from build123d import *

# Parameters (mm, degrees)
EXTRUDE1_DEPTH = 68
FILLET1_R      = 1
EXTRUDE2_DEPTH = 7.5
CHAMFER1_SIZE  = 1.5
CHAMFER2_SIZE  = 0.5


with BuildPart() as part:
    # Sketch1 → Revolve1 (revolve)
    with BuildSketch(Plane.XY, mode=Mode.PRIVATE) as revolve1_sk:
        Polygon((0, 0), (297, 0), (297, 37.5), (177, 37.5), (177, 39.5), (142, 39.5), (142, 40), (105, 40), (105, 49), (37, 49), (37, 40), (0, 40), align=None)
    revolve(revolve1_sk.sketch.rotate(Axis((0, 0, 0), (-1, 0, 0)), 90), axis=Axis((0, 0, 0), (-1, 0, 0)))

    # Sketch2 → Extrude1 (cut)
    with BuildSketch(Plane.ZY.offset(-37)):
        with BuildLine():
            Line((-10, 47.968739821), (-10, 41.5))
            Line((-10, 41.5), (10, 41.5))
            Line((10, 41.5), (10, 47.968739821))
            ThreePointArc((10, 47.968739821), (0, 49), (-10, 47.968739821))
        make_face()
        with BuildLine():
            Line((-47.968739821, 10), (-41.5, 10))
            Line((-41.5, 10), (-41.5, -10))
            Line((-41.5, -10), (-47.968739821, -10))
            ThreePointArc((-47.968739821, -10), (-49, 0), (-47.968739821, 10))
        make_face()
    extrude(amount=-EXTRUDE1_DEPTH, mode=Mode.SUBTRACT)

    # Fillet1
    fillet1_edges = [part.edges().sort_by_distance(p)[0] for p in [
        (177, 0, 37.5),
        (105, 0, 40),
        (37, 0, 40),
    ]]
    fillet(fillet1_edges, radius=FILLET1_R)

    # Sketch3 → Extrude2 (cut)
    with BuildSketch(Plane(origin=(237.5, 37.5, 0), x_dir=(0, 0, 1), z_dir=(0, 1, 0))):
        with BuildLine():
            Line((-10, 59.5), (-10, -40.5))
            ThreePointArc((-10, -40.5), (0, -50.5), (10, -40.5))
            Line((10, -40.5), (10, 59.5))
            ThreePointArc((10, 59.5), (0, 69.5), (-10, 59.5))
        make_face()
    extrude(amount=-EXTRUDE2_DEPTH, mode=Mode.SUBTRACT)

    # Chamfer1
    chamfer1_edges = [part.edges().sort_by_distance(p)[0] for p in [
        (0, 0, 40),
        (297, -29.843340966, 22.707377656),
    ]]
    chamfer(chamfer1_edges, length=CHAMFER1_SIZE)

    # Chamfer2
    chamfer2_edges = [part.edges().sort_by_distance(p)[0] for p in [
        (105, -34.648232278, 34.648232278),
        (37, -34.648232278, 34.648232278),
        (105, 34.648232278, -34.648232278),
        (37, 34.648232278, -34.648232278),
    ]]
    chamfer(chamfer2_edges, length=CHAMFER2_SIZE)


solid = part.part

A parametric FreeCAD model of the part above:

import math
import FreeCAD as App
import Part
import Sketcher
from FreeCAD import Vector
Q = App.Units.Quantity


def edges_at(feature, points):
    """Names of the edges that pass closest to the given points."""
    edges = feature.Shape.Edges
    near = lambda p: min(range(len(edges)), key=lambda i: edges[i].distToShape(Part.Vertex(*p))[0])
    return sorted({f"Edge{near(p) + 1}" for p in points})


def add_polygon(sketch, points):
    """Adds a closed chain of lines whose ends are joined by coincident constraints."""
    first, n = sketch.GeometryCount, len(points)
    for a, b in zip(points, points[1:] + points[:1]):
        sketch.addGeometry(Part.LineSegment(App.Vector(*a, 0), App.Vector(*b, 0)), False)
    for i in range(n):
        sketch.addConstraint(Sketcher.Constraint("Coincident", first + i, 2, first + (i + 1) % n, 1))

doc = App.newDocument("Part")
body = doc.addObject("PartDesign::Body", "Body")

# Sketch on XY plane
sketch1 = body.newObject("Sketcher::SketchObject", "Sketch")
sketch1.AttachmentSupport = (doc.getObject("XY_Plane"), [""])
sketch1.MapMode = "FlatFace"
add_polygon(sketch1, [(0, 0), (297, 0), (297, 37.5), (177, 37.5), (177, 39.5), (142, 39.5), (142, 40), (105, 40), (105, 49), (37, 49), (37, 40), (0, 40)])  # lines 0-11
sketch1.addConstraint([
    Sketcher.Constraint("Horizontal", 0),
    Sketcher.Constraint("Vertical", 1),
    Sketcher.Constraint("Horizontal", 2),
    Sketcher.Constraint("Vertical", 3),
    Sketcher.Constraint("Horizontal", 4),
    Sketcher.Constraint("Vertical", 5),
    Sketcher.Constraint("Horizontal", 6),
    Sketcher.Constraint("Vertical", 7),
    Sketcher.Constraint("Horizontal", 8),
    Sketcher.Constraint("Vertical", 9),
    Sketcher.Constraint("Horizontal", 10),
    Sketcher.Constraint("Vertical", 11),
    Sketcher.Constraint("Coincident", 11, 2, -1, 1),
    Sketcher.Constraint("Horizontal", 6, 2, 9, 2),
    Sketcher.Constraint("Equal", 6, 10),
    Sketcher.Constraint("DistanceX", 0, 1, 0, 2, Q("297 mm")),
    Sketcher.Constraint("DistanceX", 2, 2, 2, 1, Q("120 mm")),
    Sketcher.Constraint("DistanceX", 4, 2, 4, 1, Q("35 mm")),
    Sketcher.Constraint("DistanceX", 6, 2, 6, 1, Q("37 mm")),
    Sketcher.Constraint("DistanceY", 3, 1, 3, 2, Q("2 mm")),
    Sketcher.Constraint("DistanceY", 7, 1, 7, 2, Q("9 mm")),
    Sketcher.Constraint("DistanceY", 11, 2, 11, 1, Q("40 mm")),
    Sketcher.Constraint("DistanceY", 1, 1, 1, 2, Q("37.5 mm")),
])
revolution = body.newObject("PartDesign::Revolution", "Revolution")
revolution.Profile = sketch1
revolution.ReferenceAxis = (sketch1, ["H_Axis"])
revolution.Angle = 360

# Sketch on YZ plane
sketch2 = body.newObject("Sketcher::SketchObject", "Sketch001")
sketch2.AttachmentSupport = (doc.getObject("YZ_Plane"), [""])
sketch2.MapMode = "FlatFace"
sketch2.AttachmentOffset = App.Placement(Vector(0, 0, 37), App.Rotation())
sketch2.addGeometry([
    Part.LineSegment(Vector(47.96874, -10, 0), Vector(41.5, -10, 0)),  # 0
    Part.LineSegment(Vector(41.5, -10, 0), Vector(41.5, 10, 0)),  # 1
    Part.LineSegment(Vector(41.5, 10, 0), Vector(47.96874, 10, 0)),  # 2
    Part.ArcOfCircle(Part.Circle(Vector(0, 0, 0), Vector(0, 0, 1), 49), math.radians(-11.775744), math.radians(11.775744)),  # 3
    Part.LineSegment(Vector(10, -41.5, 0), Vector(10, -47.96874, 0)),  # 4
    Part.ArcOfCircle(Part.Circle(Vector(0, 0, 0), Vector(0, 0, 1), 49), math.radians(-101.775744), math.radians(-78.224256)),  # 5
    Part.LineSegment(Vector(-10, -47.96874, 0), Vector(-10, -41.5, 0)),  # 6
    Part.LineSegment(Vector(-10, -41.5, 0), Vector(10, -41.5, 0)),  # 7
], False)
sketch2.addConstraint([
    Sketcher.Constraint("Coincident", 0, 2, 1, 1),
    Sketcher.Constraint("Coincident", 1, 2, 2, 1),
    Sketcher.Constraint("Coincident", 2, 2, 3, 2),
    Sketcher.Constraint("Coincident", 3, 1, 0, 1),
    Sketcher.Constraint("Coincident", 4, 2, 5, 2),
    Sketcher.Constraint("Coincident", 5, 1, 6, 1),
    Sketcher.Constraint("Coincident", 6, 2, 7, 1),
    Sketcher.Constraint("Coincident", 7, 2, 4, 1),
    Sketcher.Constraint("Horizontal", 0),
    Sketcher.Constraint("Vertical", 1),
    Sketcher.Constraint("Horizontal", 2),
    Sketcher.Constraint("Vertical", 4),
    Sketcher.Constraint("Vertical", 6),
    Sketcher.Constraint("Horizontal", 7),
    Sketcher.Constraint("Coincident", 3, 3, -1, 1),
    Sketcher.Constraint("Coincident", 5, 3, -1, 1),
    Sketcher.Constraint("Equal", 3, 5),
    Sketcher.Constraint("Horizontal", 4, 2, 5, 1),
    Sketcher.Constraint("Vertical", 2, 2, 3, 1),
    Sketcher.Constraint("Equal", 7, 1),
    Sketcher.Constraint("Equal", 2, 4),
    Sketcher.Constraint("Radius", 3, Q("49 mm")),
    Sketcher.Constraint("DistanceX", 7, 1, 7, 2, Q("20 mm")),
    Sketcher.Constraint("DistanceX", -1, 1, 0, 2, Q("41.5 mm")),
])
pocket1 = body.newObject("PartDesign::Pocket", "Pocket")
pocket1.Profile = sketch2
pocket1.Length = 68
pocket1.Reversed = True
doc.recompute()

fillet = body.newObject("PartDesign::Fillet", "Fillet")
fillet.Base = (pocket1, edges_at(pocket1, [(177, 0, 37.5), (105, 0, 40), (37, 0, 40)]))
fillet.Radius = 1

# Sketch on XZ plane
sketch3 = body.newObject("Sketcher::SketchObject", "Sketch002")
sketch3.AttachmentSupport = (doc.getObject("XZ_Plane"), [""])
sketch3.MapMode = "FlatFace"
sketch3.AttachmentOffset = App.Placement(Vector(0, 0, -37.5), App.Rotation())
sketch3.addGeometry([
    Part.LineSegment(Vector(297, -10, 0), Vector(197, -10, 0)),
    Part.ArcOfCircle(Part.Circle(Vector(197, 0, 0), Vector(0, 0, 1), 10), math.radians(90), math.radians(270)),
    Part.LineSegment(Vector(197, 10, 0), Vector(297, 10, 0)),
    Part.ArcOfCircle(Part.Circle(Vector(297, 0, 0), Vector(0, 0, 1), 10), math.radians(-90), math.radians(90)),
], False)
sketch3.addConstraint([
    Sketcher.Constraint("Tangent", 0, 2, 1, 2),
    Sketcher.Constraint("Tangent", 1, 1, 2, 1),
    Sketcher.Constraint("Tangent", 2, 2, 3, 2),
    Sketcher.Constraint("Tangent", 3, 1, 0, 1),
    Sketcher.Constraint("Horizontal", 0),
    Sketcher.Constraint("Horizontal", 2),
    Sketcher.Constraint("PointOnObject", 1, 3, -1),
    Sketcher.Constraint("Radius", 1, Q("10 mm")),
    Sketcher.Constraint("DistanceX", 0, 2, 0, 1, Q("100 mm")),
    Sketcher.Constraint("DistanceX", -1, 1, 1, 3, Q("197 mm")),
])
pocket2 = body.newObject("PartDesign::Pocket", "Pocket001")
pocket2.Profile = sketch3
pocket2.Length = 7.5
pocket2.Reversed = True
doc.recompute()

chamfer = body.newObject("PartDesign::Chamfer", "Chamfer")
chamfer.Base = (pocket2, edges_at(pocket2, [(0, 0, 40), (297, -29.843, 22.707)]))
chamfer.Size = 1.5
doc.recompute()

chamfer2 = body.newObject("PartDesign::Chamfer", "Chamfer001")
chamfer2.Base = (chamfer, edges_at(chamfer, [
    (105, -34.648, 34.648),
    (37, -34.648, 34.648),
    (105, 34.648, -34.648),
    (37, 34.648, -34.648),
]))
chamfer2.Size = 0.5

doc.recompute()
